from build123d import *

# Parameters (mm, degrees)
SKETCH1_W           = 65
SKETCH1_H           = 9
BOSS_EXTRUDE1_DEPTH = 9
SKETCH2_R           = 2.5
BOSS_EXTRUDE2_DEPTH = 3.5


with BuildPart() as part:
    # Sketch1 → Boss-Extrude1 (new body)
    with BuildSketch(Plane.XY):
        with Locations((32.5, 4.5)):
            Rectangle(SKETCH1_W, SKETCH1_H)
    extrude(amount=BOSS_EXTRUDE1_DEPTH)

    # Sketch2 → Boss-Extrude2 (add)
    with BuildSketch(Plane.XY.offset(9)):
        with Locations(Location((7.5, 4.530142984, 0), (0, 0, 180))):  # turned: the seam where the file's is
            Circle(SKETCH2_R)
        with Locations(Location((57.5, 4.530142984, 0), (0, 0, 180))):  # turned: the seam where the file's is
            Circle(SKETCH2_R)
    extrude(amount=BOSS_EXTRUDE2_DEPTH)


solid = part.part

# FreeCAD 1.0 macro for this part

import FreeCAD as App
import Part
import Sketcher

V = App.Vector


def add_polygon(sketch, points):
    """Adds a closed chain of lines whose ends are joined by coincident constraints."""
    first, n = sketch.GeometryCount, len(points)
    for a, b in zip(points, points[1:] + points[:1]):
        sketch.addGeometry(Part.LineSegment(App.Vector(*a, 0), App.Vector(*b, 0)), False)
    for i in range(n):
        sketch.addConstraint(Sketcher.Constraint("Coincident", first + i, 2, first + (i + 1) % n, 1))

doc = App.newDocument("Part")
params = doc.addObject("Spreadsheet::Sheet", "Params")
for row, (alias, value) in enumerate([
    ("sketch1_width", "65 mm"),
    ("sketch1_height", "9 mm"),
    ("pad1_length", "9 mm"),
    ("sketch2_diameter", "5 mm"),
    ("pad2_length", "3.5 mm"),
], start=1):
    params.set(f"A{row}", alias)
    params.set(f"B{row}", "=" + value)
    params.setAlias(f"B{row}", alias)

body = doc.addObject("PartDesign::Body", "Body")

# Sketch on XY plane
sketch1 = body.newObject("Sketcher::SketchObject", "Sketch")
sketch1.AttachmentSupport = (doc.getObject("XY_Plane"), [""])
sketch1.MapMode = "FlatFace"
add_polygon(sketch1, [(0, 9), (0, 0), (65, 0), (65, 9)])  # lines 0-3
sketch1.addConstraint([
    Sketcher.Constraint("Vertical", 0),
    Sketcher.Constraint("Horizontal", 1),
    Sketcher.Constraint("Vertical", 2),
    Sketcher.Constraint("Horizontal", 3),
    Sketcher.Constraint("Coincident", 0, 2, -1, 1),
    Sketcher.Constraint("DistanceX", 1, 1, 1, 2, 65.0),
    Sketcher.Constraint("DistanceY", 0, 2, 0, 1, 9.0),
])
sketch1.setExpression("Constraints[9]", "Params.sketch1_width")
sketch1.setExpression("Constraints[10]", "Params.sketch1_height")
pad1 = body.newObject("PartDesign::Pad", "Pad")
pad1.Profile = sketch1
pad1.setExpression("Length", "Params.pad1_length")

# Sketch on XY plane
sketch2 = body.newObject("Sketcher::SketchObject", "Sketch001")
sketch2.AttachmentSupport = (doc.getObject("XY_Plane"), [""])
sketch2.MapMode = "FlatFace"
sketch2.AttachmentOffset = App.Placement(V(0, 0, 9), App.Rotation())
sketch2.addGeometry([
    Part.Circle(V(7.5, 4.5, 0), V(0, 0, 1), 2.5),
    Part.Circle(V(57.5, 4.5, 0), V(0, 0, 1), 2.5),
], False)
sketch2.addConstraint([
    Sketcher.Constraint("Equal", 0, 1),
    Sketcher.Constraint("Horizontal", 0, 3, 1, 3),
    Sketcher.Constraint("Diameter", 0, 5.0),
    Sketcher.Constraint("DistanceX", 0, 3, 1, 3, 50.0),
    Sketcher.Constraint("DistanceX", -1, 1, 0, 3, 7.5),
    Sketcher.Constraint("DistanceY", -1, 1, 0, 3, 4.530143),
])
sketch2.setExpression("Constraints[2]", "Params.sketch2_diameter")
pad2 = body.newObject("PartDesign::Pad", "Pad001")
pad2.Profile = sketch2
pad2.setExpression("Length", "Params.pad2_length")

doc.recompute()
